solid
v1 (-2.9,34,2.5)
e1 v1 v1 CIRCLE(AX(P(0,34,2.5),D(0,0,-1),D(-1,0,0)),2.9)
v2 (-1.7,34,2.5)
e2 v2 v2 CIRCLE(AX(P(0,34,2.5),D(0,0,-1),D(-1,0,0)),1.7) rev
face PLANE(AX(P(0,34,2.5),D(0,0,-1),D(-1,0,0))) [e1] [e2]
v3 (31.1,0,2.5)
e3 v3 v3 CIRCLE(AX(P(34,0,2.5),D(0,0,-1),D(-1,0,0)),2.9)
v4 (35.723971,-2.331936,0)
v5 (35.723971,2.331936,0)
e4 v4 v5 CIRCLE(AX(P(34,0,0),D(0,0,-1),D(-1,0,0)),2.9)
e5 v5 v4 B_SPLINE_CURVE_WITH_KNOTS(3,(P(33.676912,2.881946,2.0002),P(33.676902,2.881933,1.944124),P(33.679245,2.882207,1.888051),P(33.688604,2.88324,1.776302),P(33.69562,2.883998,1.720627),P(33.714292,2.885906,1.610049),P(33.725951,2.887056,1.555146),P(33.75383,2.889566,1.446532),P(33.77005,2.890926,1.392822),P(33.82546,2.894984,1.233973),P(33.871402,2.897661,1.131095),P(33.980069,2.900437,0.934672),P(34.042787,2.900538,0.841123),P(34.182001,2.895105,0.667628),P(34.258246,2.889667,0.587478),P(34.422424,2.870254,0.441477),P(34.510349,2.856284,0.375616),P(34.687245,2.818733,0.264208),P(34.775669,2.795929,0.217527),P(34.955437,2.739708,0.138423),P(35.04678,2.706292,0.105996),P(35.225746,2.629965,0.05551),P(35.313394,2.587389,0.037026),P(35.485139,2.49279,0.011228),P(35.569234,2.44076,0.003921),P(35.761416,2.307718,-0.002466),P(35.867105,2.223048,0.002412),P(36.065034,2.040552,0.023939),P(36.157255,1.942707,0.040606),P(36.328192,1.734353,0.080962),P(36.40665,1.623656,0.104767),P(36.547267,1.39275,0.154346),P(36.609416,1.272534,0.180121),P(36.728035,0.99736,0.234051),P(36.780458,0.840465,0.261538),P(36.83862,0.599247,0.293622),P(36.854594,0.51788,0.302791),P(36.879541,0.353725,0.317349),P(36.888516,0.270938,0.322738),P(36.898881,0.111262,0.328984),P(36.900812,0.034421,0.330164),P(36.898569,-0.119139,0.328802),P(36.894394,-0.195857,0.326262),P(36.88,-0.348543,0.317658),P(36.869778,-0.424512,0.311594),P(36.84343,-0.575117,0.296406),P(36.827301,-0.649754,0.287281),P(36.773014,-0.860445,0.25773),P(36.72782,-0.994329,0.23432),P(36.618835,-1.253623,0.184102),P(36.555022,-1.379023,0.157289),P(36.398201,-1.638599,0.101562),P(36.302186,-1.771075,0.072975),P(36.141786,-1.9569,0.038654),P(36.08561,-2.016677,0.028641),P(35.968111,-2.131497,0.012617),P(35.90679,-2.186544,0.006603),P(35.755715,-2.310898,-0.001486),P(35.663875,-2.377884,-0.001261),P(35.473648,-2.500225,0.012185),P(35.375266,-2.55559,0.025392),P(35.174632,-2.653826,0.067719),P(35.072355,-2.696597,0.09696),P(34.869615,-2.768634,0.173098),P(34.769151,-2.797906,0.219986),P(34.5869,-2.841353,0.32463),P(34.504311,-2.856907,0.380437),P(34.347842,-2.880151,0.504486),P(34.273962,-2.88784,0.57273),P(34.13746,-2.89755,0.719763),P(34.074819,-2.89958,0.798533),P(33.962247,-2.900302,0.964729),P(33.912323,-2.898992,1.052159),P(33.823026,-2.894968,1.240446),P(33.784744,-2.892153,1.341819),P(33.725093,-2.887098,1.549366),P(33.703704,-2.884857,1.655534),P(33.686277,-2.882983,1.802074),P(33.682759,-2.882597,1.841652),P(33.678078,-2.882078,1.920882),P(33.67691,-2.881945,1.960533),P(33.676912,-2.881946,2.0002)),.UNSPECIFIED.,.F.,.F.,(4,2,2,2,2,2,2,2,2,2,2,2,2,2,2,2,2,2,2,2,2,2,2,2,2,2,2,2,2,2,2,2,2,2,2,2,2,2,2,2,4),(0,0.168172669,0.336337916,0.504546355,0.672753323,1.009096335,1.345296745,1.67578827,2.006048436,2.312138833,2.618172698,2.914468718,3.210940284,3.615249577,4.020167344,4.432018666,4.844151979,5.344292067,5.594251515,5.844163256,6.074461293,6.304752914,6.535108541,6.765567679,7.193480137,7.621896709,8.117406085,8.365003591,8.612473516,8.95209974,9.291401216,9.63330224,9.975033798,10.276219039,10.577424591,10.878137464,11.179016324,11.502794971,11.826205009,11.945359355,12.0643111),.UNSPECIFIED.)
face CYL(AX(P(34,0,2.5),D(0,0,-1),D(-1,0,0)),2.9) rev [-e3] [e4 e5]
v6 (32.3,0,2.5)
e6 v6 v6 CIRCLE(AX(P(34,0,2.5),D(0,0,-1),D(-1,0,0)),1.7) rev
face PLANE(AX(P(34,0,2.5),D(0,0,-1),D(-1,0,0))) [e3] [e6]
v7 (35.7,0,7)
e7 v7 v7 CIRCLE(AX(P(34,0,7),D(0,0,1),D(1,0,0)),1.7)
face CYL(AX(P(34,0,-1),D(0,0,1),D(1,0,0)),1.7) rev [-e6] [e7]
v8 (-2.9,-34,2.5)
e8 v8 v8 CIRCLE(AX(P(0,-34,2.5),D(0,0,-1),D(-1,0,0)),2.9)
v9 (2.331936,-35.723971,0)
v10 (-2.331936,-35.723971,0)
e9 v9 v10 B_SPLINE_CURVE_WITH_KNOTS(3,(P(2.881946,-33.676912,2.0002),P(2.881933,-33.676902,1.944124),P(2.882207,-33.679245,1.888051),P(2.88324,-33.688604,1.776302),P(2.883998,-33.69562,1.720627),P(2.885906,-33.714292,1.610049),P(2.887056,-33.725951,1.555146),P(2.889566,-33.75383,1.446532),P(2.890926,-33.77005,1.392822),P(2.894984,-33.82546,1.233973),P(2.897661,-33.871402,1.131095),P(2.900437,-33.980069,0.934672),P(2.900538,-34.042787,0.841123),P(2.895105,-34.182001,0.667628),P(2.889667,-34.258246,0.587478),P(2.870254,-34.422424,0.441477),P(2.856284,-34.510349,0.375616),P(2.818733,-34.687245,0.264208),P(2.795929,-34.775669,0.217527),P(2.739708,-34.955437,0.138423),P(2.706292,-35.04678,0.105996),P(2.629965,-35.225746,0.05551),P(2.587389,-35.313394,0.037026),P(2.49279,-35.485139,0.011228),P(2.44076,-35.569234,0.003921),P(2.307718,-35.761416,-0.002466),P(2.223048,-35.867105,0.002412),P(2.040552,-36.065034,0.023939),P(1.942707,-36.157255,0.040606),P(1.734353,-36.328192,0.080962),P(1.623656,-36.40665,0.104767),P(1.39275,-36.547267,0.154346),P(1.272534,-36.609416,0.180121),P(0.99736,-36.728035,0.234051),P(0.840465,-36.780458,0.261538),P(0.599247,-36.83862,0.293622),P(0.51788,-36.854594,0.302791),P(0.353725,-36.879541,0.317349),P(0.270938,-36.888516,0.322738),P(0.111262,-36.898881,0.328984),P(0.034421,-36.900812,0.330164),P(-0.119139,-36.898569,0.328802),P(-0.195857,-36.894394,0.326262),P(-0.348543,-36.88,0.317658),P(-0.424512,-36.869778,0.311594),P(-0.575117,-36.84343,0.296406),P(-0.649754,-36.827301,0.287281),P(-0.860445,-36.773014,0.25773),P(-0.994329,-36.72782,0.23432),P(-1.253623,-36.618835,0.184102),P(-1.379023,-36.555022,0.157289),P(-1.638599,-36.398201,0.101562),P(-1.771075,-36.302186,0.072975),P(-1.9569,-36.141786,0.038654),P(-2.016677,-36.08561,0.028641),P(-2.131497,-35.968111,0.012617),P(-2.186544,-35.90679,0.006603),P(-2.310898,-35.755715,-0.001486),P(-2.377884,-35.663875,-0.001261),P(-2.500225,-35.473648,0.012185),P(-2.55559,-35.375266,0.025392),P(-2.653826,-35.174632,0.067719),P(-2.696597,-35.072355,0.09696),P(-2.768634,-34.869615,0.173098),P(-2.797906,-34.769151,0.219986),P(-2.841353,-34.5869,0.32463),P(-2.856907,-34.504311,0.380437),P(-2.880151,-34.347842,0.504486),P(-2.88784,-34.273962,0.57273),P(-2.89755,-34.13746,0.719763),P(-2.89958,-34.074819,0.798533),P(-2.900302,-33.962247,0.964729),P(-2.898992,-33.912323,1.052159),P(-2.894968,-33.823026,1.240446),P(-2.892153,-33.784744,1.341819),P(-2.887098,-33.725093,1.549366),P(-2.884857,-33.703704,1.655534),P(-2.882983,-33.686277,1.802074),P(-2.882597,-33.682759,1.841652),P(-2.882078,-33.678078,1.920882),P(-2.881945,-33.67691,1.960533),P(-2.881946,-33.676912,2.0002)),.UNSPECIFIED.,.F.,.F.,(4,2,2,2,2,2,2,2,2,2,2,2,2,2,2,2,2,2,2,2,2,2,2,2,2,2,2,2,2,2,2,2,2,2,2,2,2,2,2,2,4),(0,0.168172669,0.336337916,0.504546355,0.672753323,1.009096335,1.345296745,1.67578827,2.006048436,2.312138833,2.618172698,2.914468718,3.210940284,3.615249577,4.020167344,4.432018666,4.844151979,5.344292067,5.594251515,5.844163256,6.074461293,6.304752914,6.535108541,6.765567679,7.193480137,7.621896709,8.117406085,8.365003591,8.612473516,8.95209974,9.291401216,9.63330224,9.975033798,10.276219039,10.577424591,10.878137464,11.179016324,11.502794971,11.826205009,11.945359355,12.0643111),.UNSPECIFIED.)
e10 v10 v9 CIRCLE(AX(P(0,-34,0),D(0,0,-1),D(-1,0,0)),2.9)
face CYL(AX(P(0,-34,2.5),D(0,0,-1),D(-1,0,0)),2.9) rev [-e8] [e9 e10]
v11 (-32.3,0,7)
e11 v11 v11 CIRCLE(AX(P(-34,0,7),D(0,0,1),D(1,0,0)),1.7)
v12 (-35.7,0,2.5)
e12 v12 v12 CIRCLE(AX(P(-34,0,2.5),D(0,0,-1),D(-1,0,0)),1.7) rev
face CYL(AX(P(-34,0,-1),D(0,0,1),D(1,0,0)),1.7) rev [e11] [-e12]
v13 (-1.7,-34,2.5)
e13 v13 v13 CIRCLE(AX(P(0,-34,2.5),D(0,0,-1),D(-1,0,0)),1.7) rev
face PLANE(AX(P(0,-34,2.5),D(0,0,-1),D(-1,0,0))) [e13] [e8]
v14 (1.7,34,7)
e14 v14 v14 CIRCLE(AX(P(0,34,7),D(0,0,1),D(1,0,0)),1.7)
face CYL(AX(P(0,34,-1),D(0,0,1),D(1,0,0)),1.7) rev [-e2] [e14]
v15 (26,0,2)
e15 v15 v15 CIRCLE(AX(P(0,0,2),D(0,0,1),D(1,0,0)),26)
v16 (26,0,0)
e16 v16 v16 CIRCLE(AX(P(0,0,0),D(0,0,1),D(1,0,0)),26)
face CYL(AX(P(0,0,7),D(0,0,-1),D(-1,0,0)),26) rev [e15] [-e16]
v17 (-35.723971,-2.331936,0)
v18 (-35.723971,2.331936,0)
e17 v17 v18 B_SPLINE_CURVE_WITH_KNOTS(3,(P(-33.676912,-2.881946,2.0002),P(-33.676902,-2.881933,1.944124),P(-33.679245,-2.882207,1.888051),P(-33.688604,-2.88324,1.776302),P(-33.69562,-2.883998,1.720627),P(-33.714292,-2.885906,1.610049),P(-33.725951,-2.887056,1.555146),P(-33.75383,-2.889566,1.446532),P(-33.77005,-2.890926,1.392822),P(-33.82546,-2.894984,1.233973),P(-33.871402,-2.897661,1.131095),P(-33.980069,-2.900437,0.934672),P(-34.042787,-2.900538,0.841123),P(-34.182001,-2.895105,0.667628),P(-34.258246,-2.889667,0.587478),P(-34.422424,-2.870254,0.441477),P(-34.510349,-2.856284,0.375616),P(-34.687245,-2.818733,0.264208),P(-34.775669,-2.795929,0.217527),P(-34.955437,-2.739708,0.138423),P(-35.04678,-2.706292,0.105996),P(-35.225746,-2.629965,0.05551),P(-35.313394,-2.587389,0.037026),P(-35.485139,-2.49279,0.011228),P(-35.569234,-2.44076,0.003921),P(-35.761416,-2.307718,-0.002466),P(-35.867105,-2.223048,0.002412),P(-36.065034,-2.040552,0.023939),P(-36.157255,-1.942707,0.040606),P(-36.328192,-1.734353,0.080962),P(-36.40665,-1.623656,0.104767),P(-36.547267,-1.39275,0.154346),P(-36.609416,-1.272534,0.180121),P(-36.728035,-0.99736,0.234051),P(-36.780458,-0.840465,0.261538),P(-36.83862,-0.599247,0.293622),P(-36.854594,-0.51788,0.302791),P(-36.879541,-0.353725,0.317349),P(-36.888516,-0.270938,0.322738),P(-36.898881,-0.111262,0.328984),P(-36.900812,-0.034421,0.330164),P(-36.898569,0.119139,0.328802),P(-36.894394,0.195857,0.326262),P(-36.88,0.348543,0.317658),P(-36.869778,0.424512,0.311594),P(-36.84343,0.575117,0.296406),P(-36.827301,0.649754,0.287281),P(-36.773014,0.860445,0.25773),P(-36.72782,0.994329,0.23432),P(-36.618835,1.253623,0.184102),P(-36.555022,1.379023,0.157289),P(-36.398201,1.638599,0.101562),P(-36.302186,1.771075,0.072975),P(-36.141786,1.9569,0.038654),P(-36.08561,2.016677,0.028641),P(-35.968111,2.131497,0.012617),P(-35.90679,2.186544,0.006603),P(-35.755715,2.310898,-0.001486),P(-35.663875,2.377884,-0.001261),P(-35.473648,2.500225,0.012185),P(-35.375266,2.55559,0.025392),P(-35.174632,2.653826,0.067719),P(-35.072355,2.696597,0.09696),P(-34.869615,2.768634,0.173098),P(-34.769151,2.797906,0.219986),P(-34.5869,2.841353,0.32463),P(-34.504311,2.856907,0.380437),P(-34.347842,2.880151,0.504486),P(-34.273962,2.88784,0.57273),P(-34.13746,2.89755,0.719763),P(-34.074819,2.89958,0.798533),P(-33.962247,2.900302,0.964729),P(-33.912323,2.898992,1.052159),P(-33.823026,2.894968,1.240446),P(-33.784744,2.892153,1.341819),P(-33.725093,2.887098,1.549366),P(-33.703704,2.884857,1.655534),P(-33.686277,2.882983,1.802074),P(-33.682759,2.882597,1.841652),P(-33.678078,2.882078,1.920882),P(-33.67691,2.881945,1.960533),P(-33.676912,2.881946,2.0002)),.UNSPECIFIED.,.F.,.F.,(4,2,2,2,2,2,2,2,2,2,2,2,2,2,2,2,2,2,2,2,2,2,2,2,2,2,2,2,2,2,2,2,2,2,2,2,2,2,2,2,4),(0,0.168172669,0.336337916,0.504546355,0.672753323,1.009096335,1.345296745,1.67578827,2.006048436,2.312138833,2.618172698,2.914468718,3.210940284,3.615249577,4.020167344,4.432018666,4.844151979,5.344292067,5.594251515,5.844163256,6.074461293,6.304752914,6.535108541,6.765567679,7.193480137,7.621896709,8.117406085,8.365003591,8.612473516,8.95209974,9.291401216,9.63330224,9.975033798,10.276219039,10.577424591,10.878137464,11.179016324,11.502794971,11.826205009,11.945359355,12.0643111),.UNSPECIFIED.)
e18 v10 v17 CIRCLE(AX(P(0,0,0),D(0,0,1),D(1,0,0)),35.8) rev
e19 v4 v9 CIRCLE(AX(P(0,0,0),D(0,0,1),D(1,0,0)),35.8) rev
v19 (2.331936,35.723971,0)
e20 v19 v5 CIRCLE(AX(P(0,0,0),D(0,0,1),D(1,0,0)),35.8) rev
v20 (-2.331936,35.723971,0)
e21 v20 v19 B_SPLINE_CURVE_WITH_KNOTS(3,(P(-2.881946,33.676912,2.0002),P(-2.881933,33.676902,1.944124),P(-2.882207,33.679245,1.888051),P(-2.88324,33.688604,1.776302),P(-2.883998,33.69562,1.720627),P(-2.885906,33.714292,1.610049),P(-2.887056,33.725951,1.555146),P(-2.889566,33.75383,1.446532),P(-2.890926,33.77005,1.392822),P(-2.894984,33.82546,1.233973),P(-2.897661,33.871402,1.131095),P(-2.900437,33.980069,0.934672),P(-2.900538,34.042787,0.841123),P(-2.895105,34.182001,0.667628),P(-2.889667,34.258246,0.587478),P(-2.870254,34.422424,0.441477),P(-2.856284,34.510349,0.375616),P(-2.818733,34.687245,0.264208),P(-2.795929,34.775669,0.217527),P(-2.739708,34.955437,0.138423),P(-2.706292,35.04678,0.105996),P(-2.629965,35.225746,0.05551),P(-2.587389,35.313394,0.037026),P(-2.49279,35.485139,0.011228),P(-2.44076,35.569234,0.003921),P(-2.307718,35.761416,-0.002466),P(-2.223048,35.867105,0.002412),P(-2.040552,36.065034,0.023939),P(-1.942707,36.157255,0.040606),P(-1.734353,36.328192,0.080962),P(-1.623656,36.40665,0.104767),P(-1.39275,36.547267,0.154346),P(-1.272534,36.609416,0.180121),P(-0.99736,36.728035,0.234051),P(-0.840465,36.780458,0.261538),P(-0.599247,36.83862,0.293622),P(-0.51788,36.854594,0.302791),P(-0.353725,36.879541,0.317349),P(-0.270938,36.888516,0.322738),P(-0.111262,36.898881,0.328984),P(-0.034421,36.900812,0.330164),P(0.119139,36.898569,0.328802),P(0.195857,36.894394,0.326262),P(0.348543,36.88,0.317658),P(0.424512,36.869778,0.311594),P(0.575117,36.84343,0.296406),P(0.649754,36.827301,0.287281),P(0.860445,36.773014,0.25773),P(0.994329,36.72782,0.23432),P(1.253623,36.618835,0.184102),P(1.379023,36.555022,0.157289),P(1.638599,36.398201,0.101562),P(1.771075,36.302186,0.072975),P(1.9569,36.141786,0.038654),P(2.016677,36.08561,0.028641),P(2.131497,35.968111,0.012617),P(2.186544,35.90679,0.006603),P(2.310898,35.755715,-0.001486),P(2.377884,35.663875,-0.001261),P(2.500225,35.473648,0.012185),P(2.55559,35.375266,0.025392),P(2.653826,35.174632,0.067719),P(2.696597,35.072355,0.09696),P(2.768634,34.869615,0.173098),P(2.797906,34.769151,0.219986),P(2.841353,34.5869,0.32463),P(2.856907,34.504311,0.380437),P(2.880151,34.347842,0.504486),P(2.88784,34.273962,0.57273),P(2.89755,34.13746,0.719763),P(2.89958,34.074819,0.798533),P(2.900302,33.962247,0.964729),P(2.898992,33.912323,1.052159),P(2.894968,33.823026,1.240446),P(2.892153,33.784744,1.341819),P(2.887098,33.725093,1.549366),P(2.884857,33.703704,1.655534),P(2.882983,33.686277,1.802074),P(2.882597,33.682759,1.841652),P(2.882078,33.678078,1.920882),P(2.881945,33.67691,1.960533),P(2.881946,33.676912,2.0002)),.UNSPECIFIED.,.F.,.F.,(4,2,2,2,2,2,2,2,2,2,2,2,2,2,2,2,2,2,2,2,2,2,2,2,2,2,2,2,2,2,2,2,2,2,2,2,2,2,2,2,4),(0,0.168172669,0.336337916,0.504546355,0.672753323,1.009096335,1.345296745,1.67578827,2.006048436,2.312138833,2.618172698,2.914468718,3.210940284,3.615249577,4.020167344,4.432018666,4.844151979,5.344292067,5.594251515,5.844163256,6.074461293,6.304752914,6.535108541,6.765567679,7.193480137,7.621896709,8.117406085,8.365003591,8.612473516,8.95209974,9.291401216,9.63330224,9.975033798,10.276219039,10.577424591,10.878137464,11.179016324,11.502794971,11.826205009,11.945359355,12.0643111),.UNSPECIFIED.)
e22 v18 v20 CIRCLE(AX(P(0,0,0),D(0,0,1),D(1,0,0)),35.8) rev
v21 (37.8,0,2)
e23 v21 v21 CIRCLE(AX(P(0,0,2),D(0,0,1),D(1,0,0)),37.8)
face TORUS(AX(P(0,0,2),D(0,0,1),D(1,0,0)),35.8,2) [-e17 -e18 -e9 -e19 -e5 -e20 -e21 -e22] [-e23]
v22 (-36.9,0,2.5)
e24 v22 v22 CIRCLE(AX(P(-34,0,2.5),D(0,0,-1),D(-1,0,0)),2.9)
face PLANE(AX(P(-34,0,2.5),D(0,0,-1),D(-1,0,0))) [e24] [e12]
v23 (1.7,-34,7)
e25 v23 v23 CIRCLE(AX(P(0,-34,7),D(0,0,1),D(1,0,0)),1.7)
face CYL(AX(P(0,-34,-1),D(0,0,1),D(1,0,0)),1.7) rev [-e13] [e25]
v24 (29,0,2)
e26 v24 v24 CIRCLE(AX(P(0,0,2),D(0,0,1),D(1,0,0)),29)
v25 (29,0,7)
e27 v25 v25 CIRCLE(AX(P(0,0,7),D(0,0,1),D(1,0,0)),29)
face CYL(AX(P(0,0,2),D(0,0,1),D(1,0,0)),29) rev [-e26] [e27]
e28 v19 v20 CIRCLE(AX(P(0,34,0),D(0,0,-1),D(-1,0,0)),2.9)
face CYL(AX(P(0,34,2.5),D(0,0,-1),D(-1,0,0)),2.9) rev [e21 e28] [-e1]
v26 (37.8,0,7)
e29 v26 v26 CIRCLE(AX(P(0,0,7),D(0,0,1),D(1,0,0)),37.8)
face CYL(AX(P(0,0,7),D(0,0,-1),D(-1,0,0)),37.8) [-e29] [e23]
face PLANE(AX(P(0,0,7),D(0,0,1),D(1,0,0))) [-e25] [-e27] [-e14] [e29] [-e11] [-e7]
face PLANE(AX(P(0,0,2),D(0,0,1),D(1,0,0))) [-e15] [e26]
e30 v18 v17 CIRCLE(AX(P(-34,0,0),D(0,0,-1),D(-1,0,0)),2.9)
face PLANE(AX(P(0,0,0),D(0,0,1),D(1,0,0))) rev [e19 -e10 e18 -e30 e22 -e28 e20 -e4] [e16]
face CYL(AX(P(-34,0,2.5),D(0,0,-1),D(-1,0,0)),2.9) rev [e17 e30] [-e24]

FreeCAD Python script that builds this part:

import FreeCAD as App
import Part
import Sketcher
Q = App.Units.Quantity


def edges_at(feature, points):
    """Names of the edges that pass closest to the given points."""
    edges = feature.Shape.Edges
    near = lambda p: min(range(len(edges)), key=lambda i: edges[i].distToShape(Part.Vertex(*p))[0])
    return sorted({f"Edge{near(p) + 1}" for p in points})

doc = App.newDocument("Part")
params = doc.addObject("Spreadsheet::Sheet", "Params")
for row, (alias, value) in enumerate([
    ("sketch1_diameter", "52 mm"),
    ("sketch1_diameter2", "75.6 mm"),
    ("pad1_length", "7 mm"),
    ("sketch2_diameter", "58 mm"),
    ("pocket1_length", "5 mm"),
    ("fillet_radius", "2 mm"),
    ("sketch3_diameter", "3.4 mm"),
    ("pocket2_length", "8 mm"),
    ("sketch4_diameter", "5.8 mm"),
    ("pocket3_length", "2.5 mm"),
], start=1):
    params.set(f"A{row}", alias)
    params.set(f"B{row}", "=" + value)
    params.setAlias(f"B{row}", alias)

body = doc.addObject("PartDesign::Body", "Body")

# Sketch on XY plane
sketch1 = doc.addObject("Sketcher::SketchObject", "Sketch")
body.addObject(sketch1)
sketch1.AttachmentSupport = (doc.XY_Plane, [""])
sketch1.MapMode = "FlatFace"
sketch1.addGeometry([
    Part.Circle(App.Vector(0, 0, 0), App.Vector(0, 0, 1), 38),
    Part.Circle(App.Vector(0, 0, 0), App.Vector(0, 0, 1), 26),
], False)
sketch1.addConstraint([
    Sketcher.Constraint("Coincident", 0, 3, -1, 1),
    Sketcher.Constraint("Coincident", 1, 3, -1, 1),
    Sketcher.Constraint("Diameter", 1, Q("52 mm")),
    Sketcher.Constraint("Diameter", 0, Q("75.6 mm")),
])
sketch1.setExpression("Constraints[2]", "Params.sketch1_diameter")
sketch1.setExpression("Constraints[3]", "Params.sketch1_diameter2")
pad1 = doc.addObject("PartDesign::Pad", "Pad")
body.addObject(pad1)
pad1.Profile = sketch1
pad1.setExpression("Length", "Params.pad1_length")

# Sketch on XY plane
sketch2 = doc.addObject("Sketcher::SketchObject", "Sketch001")
body.addObject(sketch2)
sketch2.AttachmentSupport = (doc.XY_Plane, [""])
sketch2.MapMode = "FlatFace"
sketch2.AttachmentOffset = App.Placement(App.Vector(0, 0, 7), App.Rotation())
sketch2.addGeometry(Part.Circle(App.Vector(0, 0, 0), App.Vector(0, 0, 1), 29), False)
sketch2.addConstraint([
    Sketcher.Constraint("Coincident", 0, 3, -1, 1),
    Sketcher.Constraint("Diameter", 0, Q("58 mm")),
])
sketch2.setExpression("Constraints[1]", "Params.sketch2_diameter")
pocket1 = doc.addObject("PartDesign::Pocket", "Pocket")
body.addObject(pocket1)
pocket1.Profile = sketch2
pocket1.setExpression("Length", "Params.pocket1_length")
doc.recompute()

fillet = doc.addObject("PartDesign::Fillet", "Fillet")
body.addObject(fillet)
fillet.Base = (pocket1, edges_at(pocket1, [(-37.8, 0, 0)]))
fillet.setExpression("Radius", "Params.fillet_radius")

# Sketch on XY plane
sketch3 = doc.addObject("Sketcher::SketchObject", "Sketch002")
body.addObject(sketch3)
sketch3.AttachmentSupport = (doc.XY_Plane, [""])
sketch3.MapMode = "FlatFace"
sketch3.AttachmentOffset = App.Placement(App.Vector(0, 0, 7), App.Rotation())
sketch3.addGeometry([
    Part.Circle(App.Vector(0, -34, 0), App.Vector(0, 0, 1), 1.7),
    Part.Circle(App.Vector(-34, 0, 0), App.Vector(0, 0, 1), 1.7),
    Part.Circle(App.Vector(0, 34, 0), App.Vector(0, 0, 1), 1.7),
    Part.Circle(App.Vector(34, 0, 0), App.Vector(0, 0, 1), 1.7),
], False)
sketch3.addConstraint([
    Sketcher.Constraint("Equal", 0, 1),
    Sketcher.Constraint("Equal", 1, 2),
    Sketcher.Constraint("Equal", 2, 3),
    Sketcher.Constraint("Symmetric", 0, 3, 2, 3, -1, 1),
    Sketcher.Constraint("Symmetric", 1, 3, 3, 3, -1, 1),
    Sketcher.Constraint("PointOnObject", 0, 3, -2),
    Sketcher.Constraint("PointOnObject", 1, 3, -1),
    Sketcher.Constraint("Diameter", 0, Q("3.4 mm")),
    Sketcher.Constraint("DistanceY", 0, 3, -1, 1, Q("34 mm")),
    Sketcher.Constraint("DistanceX", 1, 3, -1, 1, Q("34 mm")),
])
sketch3.setExpression("Constraints[7]", "Params.sketch3_diameter")
pocket2 = doc.addObject("PartDesign::Pocket", "Pocket001")
body.addObject(pocket2)
pocket2.Profile = sketch3
pocket2.setExpression("Length", "Params.pocket2_length")

# Sketch on XY plane
sketch4 = doc.addObject("Sketcher::SketchObject", "Sketch003")
body.addObject(sketch4)
sketch4.AttachmentSupport = (doc.XY_Plane, [""])
sketch4.MapMode = "FlatFace"
sketch4.addGeometry([
    Part.Circle(App.Vector(34, 0, 0), App.Vector(0, 0, 1), 2.9),
    Part.Circle(App.Vector(0, 34, 0), App.Vector(0, 0, 1), 2.9),
    Part.Circle(App.Vector(-34, 0, 0), App.Vector(0, 0, 1), 2.9),
    Part.Circle(App.Vector(0, -34, 0), App.Vector(0, 0, 1), 2.9),
], False)
sketch4.addConstraint([
    Sketcher.Constraint("Equal", 0, 1),
    Sketcher.Constraint("Equal", 1, 2),
    Sketcher.Constraint("Equal", 2, 3),
    Sketcher.Constraint("Symmetric", 0, 3, 2, 3, -1, 1),
    Sketcher.Constraint("Symmetric", 1, 3, 3, 3, -1, 1),
    Sketcher.Constraint("PointOnObject", 0, 3, -1),
    Sketcher.Constraint("PointOnObject", 1, 3, -2),
    Sketcher.Constraint("Diameter", 0, Q("5.8 mm")),
    Sketcher.Constraint("DistanceX", -1, 1, 0, 3, Q("34 mm")),
    Sketcher.Constraint("DistanceY", -1, 1, 1, 3, Q("34 mm")),
])
sketch4.setExpression("Constraints[7]", "Params.sketch4_diameter")
pocket3 = doc.addObject("PartDesign::Pocket", "Pocket002")
body.addObject(pocket3)
pocket3.Profile = sketch4
pocket3.setExpression("Length", "Params.pocket3_length")
pocket3.Reversed = True

doc.recompute()
